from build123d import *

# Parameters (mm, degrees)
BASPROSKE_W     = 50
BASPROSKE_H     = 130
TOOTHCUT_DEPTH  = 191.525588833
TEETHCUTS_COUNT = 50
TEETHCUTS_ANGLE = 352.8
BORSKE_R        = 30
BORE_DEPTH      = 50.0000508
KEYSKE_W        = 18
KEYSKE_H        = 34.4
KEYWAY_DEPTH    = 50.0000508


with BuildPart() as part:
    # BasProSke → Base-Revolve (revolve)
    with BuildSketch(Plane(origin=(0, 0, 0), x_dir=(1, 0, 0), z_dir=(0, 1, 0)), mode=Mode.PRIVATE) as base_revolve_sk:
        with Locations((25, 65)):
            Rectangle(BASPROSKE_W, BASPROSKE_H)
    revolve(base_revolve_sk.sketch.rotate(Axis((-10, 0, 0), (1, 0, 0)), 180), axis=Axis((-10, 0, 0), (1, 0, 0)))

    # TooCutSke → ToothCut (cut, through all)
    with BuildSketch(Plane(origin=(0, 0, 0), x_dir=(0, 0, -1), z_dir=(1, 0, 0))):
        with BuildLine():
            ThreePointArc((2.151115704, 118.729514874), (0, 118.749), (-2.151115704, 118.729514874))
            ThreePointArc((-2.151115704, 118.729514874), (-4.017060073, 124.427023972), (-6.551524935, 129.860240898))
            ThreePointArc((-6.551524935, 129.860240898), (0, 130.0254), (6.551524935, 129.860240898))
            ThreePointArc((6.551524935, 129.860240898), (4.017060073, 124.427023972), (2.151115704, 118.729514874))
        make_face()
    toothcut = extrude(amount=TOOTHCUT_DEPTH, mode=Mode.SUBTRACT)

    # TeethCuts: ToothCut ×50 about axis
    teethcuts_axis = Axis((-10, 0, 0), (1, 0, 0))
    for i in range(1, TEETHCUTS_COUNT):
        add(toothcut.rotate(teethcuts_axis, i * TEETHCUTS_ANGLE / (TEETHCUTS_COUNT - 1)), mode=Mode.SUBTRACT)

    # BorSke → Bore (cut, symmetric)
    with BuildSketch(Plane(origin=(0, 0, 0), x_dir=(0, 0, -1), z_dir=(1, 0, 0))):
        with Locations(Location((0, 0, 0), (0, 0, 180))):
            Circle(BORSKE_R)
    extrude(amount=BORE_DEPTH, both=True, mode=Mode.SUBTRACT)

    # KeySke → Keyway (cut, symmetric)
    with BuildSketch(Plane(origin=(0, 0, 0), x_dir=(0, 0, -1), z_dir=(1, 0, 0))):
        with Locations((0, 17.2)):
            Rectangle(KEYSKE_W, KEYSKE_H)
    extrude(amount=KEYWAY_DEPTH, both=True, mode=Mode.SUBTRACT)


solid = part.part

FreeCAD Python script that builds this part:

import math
import FreeCAD as App
import Part
import Sketcher
Q = App.Units.Quantity


def add_polygon(sketch, points):
    """Adds a closed chain of lines whose ends are joined by coincident constraints."""
    first, n = sketch.GeometryCount, len(points)
    for a, b in zip(points, points[1:] + points[:1]):
        sketch.addGeometry(Part.LineSegment(App.Vector(*a, 0), App.Vector(*b, 0)), False)
    for i in range(n):
        sketch.addConstraint(Sketcher.Constraint("Coincident", first + i, 2, first + (i + 1) % n, 1))

doc = App.newDocument("Part")
params = doc.addObject("Spreadsheet::Sheet", "Params")
for row, (alias, value) in enumerate([
    ("sketch1_width", "50 mm"),
    ("sketch1_height", "130 mm"),
    ("revolution_angle", "360 deg"),
    ("sketch2_radius", "50 mm"),
    ("sketch3_diameter", "60 mm"),
    ("pocket2_length", "100.000102 mm"),
    ("sketch4_height", "18 mm"),
    ("sketch4_width", "34.4 mm"),
    ("pocket3_length", "100.000102 mm"),
], start=1):
    params.set(f"A{row}", alias)
    params.set(f"B{row}", "=" + value)
    params.setAlias(f"B{row}", alias)

body = doc.addObject("PartDesign::Body", "Body")

# Sketch on XZ plane
sketch1 = doc.addObject("Sketcher::SketchObject", "Sketch")
body.addObject(sketch1)
sketch1.AttachmentSupport = (doc.XZ_Plane, [""])
sketch1.MapMode = "FlatFace"
add_polygon(sketch1, [(0, -130), (0, 0), (50, 0), (50, -130)])  # lines 0-3
sketch1.addConstraint([
    Sketcher.Constraint("Vertical", 0),
    Sketcher.Constraint("Horizontal", 1),
    Sketcher.Constraint("Vertical", 2),
    Sketcher.Constraint("Horizontal", 3),
    Sketcher.Constraint("Coincident", 0, 2, -1, 1),
    Sketcher.Constraint("DistanceX", 1, 1, 1, 2, Q("50 mm")),
    Sketcher.Constraint("DistanceY", 0, 1, 0, 2, Q("130 mm")),
])
sketch1.setExpression("Constraints[9]", "Params.sketch1_width")
sketch1.setExpression("Constraints[10]", "Params.sketch1_height")
revolution = doc.addObject("PartDesign::Revolution", "Revolution")
body.addObject(revolution)
revolution.Profile = sketch1
revolution.ReferenceAxis = (sketch1, ["H_Axis"])
revolution.setExpression("Angle", "Params.revolution_angle")

# Sketch on YZ plane
sketch2 = doc.addObject("Sketcher::SketchObject", "Sketch001")
body.addObject(sketch2)
sketch2.AttachmentSupport = (doc.YZ_Plane, [""])
sketch2.MapMode = "FlatFace"
sketch2.addGeometry([
    Part.ArcOfCircle(Part.Circle(App.Vector(0, 0, 0), App.Vector(0, 0, 1), 118.7), math.radians(-1.04), math.radians(1.04)),
    Part.ArcOfCircle(Part.Circle(App.Vector(106, -50.5, 0), App.Vector(0, 0, 1), 50), math.radians(61.55), math.radians(75.3)),
    Part.ArcOfCircle(Part.Circle(App.Vector(0, 0, 0), App.Vector(0, 0, 1), 130), math.radians(-2.89), math.radians(2.89)),
    Part.ArcOfCircle(Part.Circle(App.Vector(106, 50.5, 0), App.Vector(0, 0, 1), 50), math.radians(-75.3), math.radians(-61.55)),
], False)
sketch2.addConstraint([
    Sketcher.Constraint("Coincident", 0, 1, 1, 2),
    Sketcher.Constraint("Coincident", 1, 1, 2, 1),
    Sketcher.Constraint("Coincident", 2, 2, 3, 2),
    Sketcher.Constraint("Coincident", 3, 1, 0, 2),
    Sketcher.Constraint("Coincident", 0, 3, -1, 1),
    Sketcher.Constraint("Coincident", 2, 3, -1, 1),
    Sketcher.Constraint("Equal", 1, 3),
    Sketcher.Constraint("Symmetric", 1, 3, 3, 3, -1),
    Sketcher.Constraint("Radius", 1, Q("50 mm")),
    Sketcher.Constraint("Radius", 0, Q("118.749 mm")),
    Sketcher.Constraint("Radius", 2, Q("130.0254 mm")),
    Sketcher.Constraint("DistanceX", -1, 1, 1, 3, Q("106.044478 mm")),
    Sketcher.Constraint("DistanceX", -1, 1, 2, 2, Q("129.860241 mm")),
])
sketch2.setExpression("Constraints[8]", "Params.sketch2_radius")
pocket1 = doc.addObject("PartDesign::Pocket", "Pocket")
body.addObject(pocket1)
pocket1.Profile = sketch2
pocket1.Type = "ThroughAll"
pocket1.Reversed = True
doc.recompute()

polarpattern = doc.addObject("PartDesign::PolarPattern", "PolarPattern")
body.addObject(polarpattern)
polarpattern.Originals = [pocket1]
polarpattern.Axis = (doc.X_Axis, [""])
polarpattern.Angle = 360
polarpattern.Occurrences = 50
body.Tip = polarpattern

# Sketch on YZ plane
sketch3 = doc.addObject("Sketcher::SketchObject", "Sketch002")
body.addObject(sketch3)
sketch3.AttachmentSupport = (doc.YZ_Plane, [""])
sketch3.MapMode = "FlatFace"
sketch3.addGeometry(Part.Circle(App.Vector(0, 0, 0), App.Vector(0, 0, 1), 30), False)
sketch3.addConstraint([
    Sketcher.Constraint("Coincident", 0, 3, -1, 1),
    Sketcher.Constraint("Diameter", 0, Q("60 mm")),
])
sketch3.setExpression("Constraints[1]", "Params.sketch3_diameter")
pocket2 = doc.addObject("PartDesign::Pocket", "Pocket001")
body.addObject(pocket2)
pocket2.Profile = sketch3
pocket2.setExpression("Length", "Params.pocket2_length")
pocket2.Midplane = True

# Sketch on YZ plane
sketch4 = doc.addObject("Sketcher::SketchObject", "Sketch003")
body.addObject(sketch4)
sketch4.AttachmentSupport = (doc.YZ_Plane, [""])
sketch4.MapMode = "FlatFace"
add_polygon(sketch4, [(34, 9), (0, 9), (0, -9), (34, -9)])  # lines 0-3
sketch4.addConstraint([
    Sketcher.Constraint("Horizontal", 0),
    Sketcher.Constraint("Vertical", 1),
    Sketcher.Constraint("Horizontal", 2),
    Sketcher.Constraint("Vertical", 3),
    Sketcher.Constraint("Symmetric", 0, 2, 1, 2, -1, 1),
    Sketcher.Constraint("DistanceY", 1, 2, 1, 1, Q("18 mm")),
    Sketcher.Constraint("DistanceX", 0, 2, 0, 1, Q("34.4 mm")),
])
sketch4.setExpression("Constraints[9]", "Params.sketch4_height")
sketch4.setExpression("Constraints[10]", "Params.sketch4_width")
pocket3 = doc.addObject("PartDesign::Pocket", "Pocket002")
body.addObject(pocket3)
pocket3.Profile = sketch4
pocket3.setExpression("Length", "Params.pocket3_length")
pocket3.Midplane = True

doc.recompute()
